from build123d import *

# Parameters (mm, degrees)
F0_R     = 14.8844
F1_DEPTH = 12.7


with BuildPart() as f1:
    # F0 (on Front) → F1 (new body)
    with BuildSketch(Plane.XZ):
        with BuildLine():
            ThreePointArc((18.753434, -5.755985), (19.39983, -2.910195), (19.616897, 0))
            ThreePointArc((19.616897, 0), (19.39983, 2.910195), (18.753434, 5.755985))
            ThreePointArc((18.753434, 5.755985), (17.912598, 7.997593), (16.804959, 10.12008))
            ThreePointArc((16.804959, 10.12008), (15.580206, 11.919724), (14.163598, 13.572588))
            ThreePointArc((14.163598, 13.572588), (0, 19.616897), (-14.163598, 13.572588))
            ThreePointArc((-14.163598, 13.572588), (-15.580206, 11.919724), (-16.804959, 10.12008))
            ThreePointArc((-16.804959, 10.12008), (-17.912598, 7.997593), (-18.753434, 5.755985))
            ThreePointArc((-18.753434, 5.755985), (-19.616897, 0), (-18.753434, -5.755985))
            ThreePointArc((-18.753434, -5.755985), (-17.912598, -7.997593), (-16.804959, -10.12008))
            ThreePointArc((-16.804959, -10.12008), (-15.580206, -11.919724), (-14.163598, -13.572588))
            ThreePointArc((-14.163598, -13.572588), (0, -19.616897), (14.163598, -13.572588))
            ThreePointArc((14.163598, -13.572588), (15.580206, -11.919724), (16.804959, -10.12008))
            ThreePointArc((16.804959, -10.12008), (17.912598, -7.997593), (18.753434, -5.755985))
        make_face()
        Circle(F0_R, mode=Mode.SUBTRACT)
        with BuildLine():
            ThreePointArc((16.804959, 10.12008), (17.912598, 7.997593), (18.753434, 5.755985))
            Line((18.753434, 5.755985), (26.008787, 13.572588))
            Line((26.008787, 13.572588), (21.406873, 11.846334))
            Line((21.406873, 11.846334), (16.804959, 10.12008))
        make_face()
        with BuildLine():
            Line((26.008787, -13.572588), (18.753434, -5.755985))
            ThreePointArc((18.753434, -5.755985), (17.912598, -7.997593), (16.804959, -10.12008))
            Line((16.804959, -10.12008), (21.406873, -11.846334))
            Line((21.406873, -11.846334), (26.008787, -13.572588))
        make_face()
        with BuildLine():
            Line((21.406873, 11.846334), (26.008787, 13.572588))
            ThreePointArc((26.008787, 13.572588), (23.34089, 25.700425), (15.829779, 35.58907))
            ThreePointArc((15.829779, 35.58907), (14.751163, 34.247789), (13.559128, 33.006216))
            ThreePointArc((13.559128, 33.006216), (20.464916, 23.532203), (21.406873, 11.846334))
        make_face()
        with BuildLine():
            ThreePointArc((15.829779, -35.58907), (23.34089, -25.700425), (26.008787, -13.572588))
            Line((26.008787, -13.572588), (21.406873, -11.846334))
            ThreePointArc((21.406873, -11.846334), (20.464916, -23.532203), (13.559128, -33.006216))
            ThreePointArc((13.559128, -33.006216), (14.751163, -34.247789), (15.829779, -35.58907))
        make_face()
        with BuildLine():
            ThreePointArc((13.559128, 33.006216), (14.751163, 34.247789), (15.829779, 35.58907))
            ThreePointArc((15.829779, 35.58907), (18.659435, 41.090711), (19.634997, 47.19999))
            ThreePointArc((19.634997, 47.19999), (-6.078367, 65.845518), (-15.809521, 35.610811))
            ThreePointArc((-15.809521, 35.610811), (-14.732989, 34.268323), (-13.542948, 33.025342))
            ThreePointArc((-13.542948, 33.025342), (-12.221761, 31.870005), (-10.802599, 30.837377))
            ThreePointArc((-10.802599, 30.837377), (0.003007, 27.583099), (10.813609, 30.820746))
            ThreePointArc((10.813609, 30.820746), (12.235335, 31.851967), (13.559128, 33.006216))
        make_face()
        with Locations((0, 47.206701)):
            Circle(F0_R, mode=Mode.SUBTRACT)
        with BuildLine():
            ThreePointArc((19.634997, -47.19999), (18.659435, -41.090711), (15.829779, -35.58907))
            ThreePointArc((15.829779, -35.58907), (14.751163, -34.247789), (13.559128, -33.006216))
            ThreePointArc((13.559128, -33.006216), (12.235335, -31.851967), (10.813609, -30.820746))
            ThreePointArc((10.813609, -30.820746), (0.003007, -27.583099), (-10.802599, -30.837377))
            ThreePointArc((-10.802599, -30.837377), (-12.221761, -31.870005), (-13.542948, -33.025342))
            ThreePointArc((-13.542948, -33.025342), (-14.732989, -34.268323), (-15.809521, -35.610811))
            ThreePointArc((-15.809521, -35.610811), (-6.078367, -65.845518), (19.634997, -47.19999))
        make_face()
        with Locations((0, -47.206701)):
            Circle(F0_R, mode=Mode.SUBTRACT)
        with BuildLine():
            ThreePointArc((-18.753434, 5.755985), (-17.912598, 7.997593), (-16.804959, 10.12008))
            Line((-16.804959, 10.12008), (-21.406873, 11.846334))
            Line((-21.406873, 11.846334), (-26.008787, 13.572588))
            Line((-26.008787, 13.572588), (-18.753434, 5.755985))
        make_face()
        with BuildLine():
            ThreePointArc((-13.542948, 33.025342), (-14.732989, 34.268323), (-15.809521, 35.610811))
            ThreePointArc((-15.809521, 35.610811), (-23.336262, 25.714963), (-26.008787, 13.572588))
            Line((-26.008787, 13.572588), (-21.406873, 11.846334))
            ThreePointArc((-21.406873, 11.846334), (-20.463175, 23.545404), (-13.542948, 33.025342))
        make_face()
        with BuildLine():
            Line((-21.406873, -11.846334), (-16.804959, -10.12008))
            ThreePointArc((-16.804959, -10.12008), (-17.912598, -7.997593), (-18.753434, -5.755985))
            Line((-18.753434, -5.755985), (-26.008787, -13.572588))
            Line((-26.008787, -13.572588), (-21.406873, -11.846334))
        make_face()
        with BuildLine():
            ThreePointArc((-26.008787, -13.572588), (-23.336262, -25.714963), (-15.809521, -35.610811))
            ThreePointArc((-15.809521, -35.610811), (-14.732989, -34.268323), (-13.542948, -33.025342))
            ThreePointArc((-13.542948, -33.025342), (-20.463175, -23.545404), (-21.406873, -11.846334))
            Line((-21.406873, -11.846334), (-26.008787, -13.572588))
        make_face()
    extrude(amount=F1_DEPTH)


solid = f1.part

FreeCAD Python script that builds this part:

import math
import FreeCAD as App
import Part
import Sketcher

V = App.Vector
Q = App.Units.Quantity

doc = App.newDocument("Part")
body = doc.addObject("PartDesign::Body", "Body")

sketch1 = body.newObject("Sketcher::SketchObject", "Sketch")
sketch1.AttachmentSupport = (doc.getObject("XZ_Plane"), [""])
sketch1.MapMode = "FlatFace"
sketch1.addGeometry(Part.ArcOfCircle(Part.Circle(V(0, 0, 0), V(0, 0, 1), 19.6), math.radians(-17.06), math.radians(0)), False)
sketch1.addGeometry(Part.ArcOfCircle(Part.Circle(V(0, 0, 0), V(0, 0, 1), 19.6), math.radians(0), math.radians(17.06)), False)
sketch1.addGeometry(Part.LineSegment(V(18.8, 5.8, 0), V(26, 13.6, 0)), False)
sketch1.addGeometry(Part.ArcOfCircle(Part.Circle(V(-2.9, 13.6, 0), V(0, 0, 1), 28.9), math.radians(0), math.radians(50)), False)
sketch1.addGeometry(Part.ArcOfCircle(Part.Circle(V(0, 47.2, 0), V(0, 0, 1), 19.6), math.radians(-36), math.radians(0)), False)
sketch1.addGeometry(Part.ArcOfCircle(Part.Circle(V(0, 47.2, 0), V(0, 0, 1), 19.6), math.radians(0), math.radians(216)), False)
sketch1.addGeometry(Part.ArcOfCircle(Part.Circle(V(2.9, 13.6, 0), V(0, 0, 1), 28.9), math.radians(130), math.radians(180)), False)
sketch1.addGeometry(Part.LineSegment(V(-26, 13.6, 0), V(-18.8, 5.8, 0)), False)
sketch1.addGeometry(Part.ArcOfCircle(Part.Circle(V(0, 0, 0), V(0, 0, 1), 19.6), math.radians(163), math.radians(197)), False)
sketch1.addGeometry(Part.LineSegment(V(-18.8, -5.8, 0), V(-26, -13.6, 0)), False)
sketch1.addGeometry(Part.ArcOfCircle(Part.Circle(V(2.9, -13.6, 0), V(0, 0, 1), 28.9), math.radians(180), math.radians(230)), False)
sketch1.addGeometry(Part.ArcOfCircle(Part.Circle(V(0, -47.2, 0), V(0, 0, 1), 19.6), math.radians(144), math.radians(360)), False)
sketch1.addGeometry(Part.ArcOfCircle(Part.Circle(V(0, -47.2, 0), V(0, 0, 1), 19.6), math.radians(0), math.radians(36)), False)
sketch1.addGeometry(Part.ArcOfCircle(Part.Circle(V(-2.9, -13.6, 0), V(0, 0, 1), 28.9), math.radians(-50), math.radians(0)), False)
sketch1.addGeometry(Part.LineSegment(V(26, -13.6, 0), V(18.8, -5.8, 0)), False)
sketch1.addGeometry(Part.LineSegment(V(-21.4, -11.8, 0), V(-16.8, -10.1, 0)), False)
sketch1.addGeometry(Part.ArcOfCircle(Part.Circle(V(0, 0, 0), V(0, 0, 1), 19.6), math.radians(-148.94), math.radians(-136.22)), False)
sketch1.addGeometry(Part.ArcOfCircle(Part.Circle(V(0, 0, 0), V(0, 0, 1), 19.6), math.radians(-136), math.radians(-44)), False)
sketch1.addGeometry(Part.ArcOfCircle(Part.Circle(V(0, 0, 0), V(0, 0, 1), 19.6), math.radians(-43.78), math.radians(-31.06)), False)
sketch1.addGeometry(Part.LineSegment(V(16.8, -10.1, 0), V(21.4, -11.8, 0)), False)
sketch1.addGeometry(Part.ArcOfCircle(Part.Circle(V(0.2, -16, 0), V(0, 0, 1), 21.6), math.radians(-52), math.radians(11)), False)
sketch1.addGeometry(Part.ArcOfCircle(Part.Circle(V(0, -47.2, 0), V(0, 0, 1), 19.6), math.radians(46.35), math.radians(56.61)), False)
sketch1.addGeometry(Part.ArcOfCircle(Part.Circle(V(0, -47.2, 0), V(0, 0, 1), 19.6), math.radians(57), math.radians(123)), False)
sketch1.addGeometry(Part.ArcOfCircle(Part.Circle(V(0, -47.2, 0), V(0, 0, 1), 19.6), math.radians(123.48), math.radians(133.73)), False)
sketch1.addGeometry(Part.ArcOfCircle(Part.Circle(V(-0.2, -16, 0), V(0, 0, 1), 21.6), math.radians(169), math.radians(232)), False)
sketch1.addGeometry(Part.ArcOfCircle(Part.Circle(V(0, 47.2, 0), V(0, 0, 1), 19.6), math.radians(-133.73), math.radians(-123.48)), False)
sketch1.addGeometry(Part.ArcOfCircle(Part.Circle(V(0, 47.2, 0), V(0, 0, 1), 19.6), math.radians(-123), math.radians(-57)), False)
sketch1.addGeometry(Part.ArcOfCircle(Part.Circle(V(0, 47.2, 0), V(0, 0, 1), 19.6), math.radians(-56.61), math.radians(-46.35)), False)
sketch1.addGeometry(Part.ArcOfCircle(Part.Circle(V(0.2, 16, 0), V(0, 0, 1), 21.6), math.radians(-11), math.radians(52)), False)
sketch1.addGeometry(Part.LineSegment(V(21.4, 11.8, 0), V(16.8, 10.1, 0)), False)
sketch1.addGeometry(Part.ArcOfCircle(Part.Circle(V(0, 0, 0), V(0, 0, 1), 19.6), math.radians(31.06), math.radians(43.78)), False)
sketch1.addGeometry(Part.ArcOfCircle(Part.Circle(V(0, 0, 0), V(0, 0, 1), 19.6), math.radians(44), math.radians(136)), False)
sketch1.addGeometry(Part.ArcOfCircle(Part.Circle(V(0, 0, 0), V(0, 0, 1), 19.6), math.radians(136.22), math.radians(148.94)), False)
sketch1.addGeometry(Part.LineSegment(V(-16.8, 10.1, 0), V(-21.4, 11.8, 0)), False)
sketch1.addGeometry(Part.ArcOfCircle(Part.Circle(V(-0.2, 16, 0), V(0, 0, 1), 21.6), math.radians(128), math.radians(191)), False)
sketch1.addGeometry(Part.Circle(V(0, -47.2, 0), V(0, 0, 1), 14.9), False)
sketch1.addGeometry(Part.Circle(V(0, 0, 0), V(0, 0, 1), 14.9), False)
sketch1.addGeometry(Part.Circle(V(0, 47.2, 0), V(0, 0, 1), 14.9), False)
sketch1.addConstraint(Sketcher.Constraint("Tangent", 0, 2, 1, 1))
sketch1.addConstraint(Sketcher.Constraint("Coincident", 1, 2, 2, 1))
sketch1.addConstraint(Sketcher.Constraint("Coincident", 2, 2, 3, 1))
sketch1.addConstraint(Sketcher.Constraint("Coincident", 3, 2, 4, 1))
sketch1.addConstraint(Sketcher.Constraint("Tangent", 4, 2, 5, 1))
sketch1.addConstraint(Sketcher.Constraint("Coincident", 5, 2, 6, 1))
sketch1.addConstraint(Sketcher.Constraint("Coincident", 6, 2, 7, 1))
sketch1.addConstraint(Sketcher.Constraint("Coincident", 7, 2, 8, 1))
sketch1.addConstraint(Sketcher.Constraint("Coincident", 8, 2, 9, 1))
sketch1.addConstraint(Sketcher.Constraint("Coincident", 9, 2, 10, 1))
sketch1.addConstraint(Sketcher.Constraint("Coincident", 10, 2, 11, 1))
sketch1.addConstraint(Sketcher.Constraint("Tangent", 11, 2, 12, 1))
sketch1.addConstraint(Sketcher.Constraint("Coincident", 12, 2, 13, 1))
sketch1.addConstraint(Sketcher.Constraint("Coincident", 13, 2, 14, 1))
sketch1.addConstraint(Sketcher.Constraint("Coincident", 14, 2, 0, 1))
sketch1.addConstraint(Sketcher.Constraint("Coincident", 15, 2, 16, 1))
sketch1.addConstraint(Sketcher.Constraint("Tangent", 16, 2, 17, 1))
sketch1.addConstraint(Sketcher.Constraint("Tangent", 17, 2, 18, 1))
sketch1.addConstraint(Sketcher.Constraint("Coincident", 18, 2, 19, 1))
sketch1.addConstraint(Sketcher.Constraint("Coincident", 19, 2, 20, 2))
sketch1.addConstraint(Sketcher.Constraint("Coincident", 20, 1, 21, 1))
sketch1.addConstraint(Sketcher.Constraint("Tangent", 21, 2, 22, 1))
sketch1.addConstraint(Sketcher.Constraint("Tangent", 22, 2, 23, 1))
sketch1.addConstraint(Sketcher.Constraint("Coincident", 23, 2, 24, 2))
sketch1.addConstraint(Sketcher.Constraint("Coincident", 24, 1, 15, 1))
sketch1.addConstraint(Sketcher.Constraint("Tangent", 25, 2, 26, 1))
sketch1.addConstraint(Sketcher.Constraint("Tangent", 26, 2, 27, 1))
sketch1.addConstraint(Sketcher.Constraint("Coincident", 27, 2, 28, 2))
sketch1.addConstraint(Sketcher.Constraint("Coincident", 28, 1, 29, 1))
sketch1.addConstraint(Sketcher.Constraint("Coincident", 29, 2, 30, 1))
sketch1.addConstraint(Sketcher.Constraint("Tangent", 30, 2, 31, 1))
sketch1.addConstraint(Sketcher.Constraint("Tangent", 31, 2, 32, 1))
sketch1.addConstraint(Sketcher.Constraint("Coincident", 32, 2, 33, 1))
sketch1.addConstraint(Sketcher.Constraint("Coincident", 33, 2, 34, 2))
sketch1.addConstraint(Sketcher.Constraint("Coincident", 34, 1, 25, 1))
sketch1.addConstraint(Sketcher.Constraint("Coincident", 8, 3, -1, 1))
sketch1.addConstraint(Sketcher.Constraint("Coincident", 17, 3, -1, 1))
sketch1.addConstraint(Sketcher.Constraint("Coincident", 31, 3, -1, 1))
sketch1.addConstraint(Sketcher.Constraint("Coincident", 36, 3, -1, 1))
sketch1.addConstraint(Sketcher.Constraint("Coincident", 22, 3, 11, 3))
sketch1.addConstraint(Sketcher.Constraint("Coincident", 26, 3, 4, 3))
sketch1.addConstraint(Sketcher.Constraint("Equal", 0, 1))
sketch1.addConstraint(Sketcher.Constraint("Equal", 5, 8))
sketch1.addConstraint(Sketcher.Constraint("Equal", 6, 10))
sketch1.addConstraint(Sketcher.Constraint("Equal", 8, 11))
sketch1.addConstraint(Sketcher.Constraint("Equal", 4, 12))
sketch1.addConstraint(Sketcher.Constraint("Equal", 3, 13))
sketch1.addConstraint(Sketcher.Constraint("Equal", 11, 17))
sketch1.addConstraint(Sketcher.Constraint("Equal", 16, 18))
sketch1.addConstraint(Sketcher.Constraint("Equal", 18, 21))
sketch1.addConstraint(Sketcher.Constraint("Equal", 17, 22))
sketch1.addConstraint(Sketcher.Constraint("Equal", 23, 25))
sketch1.addConstraint(Sketcher.Constraint("Equal", 22, 26))
sketch1.addConstraint(Sketcher.Constraint("Equal", 21, 27))
sketch1.addConstraint(Sketcher.Constraint("Equal", 20, 28))
sketch1.addConstraint(Sketcher.Constraint("Equal", 27, 30))
sketch1.addConstraint(Sketcher.Constraint("Equal", 26, 31))
sketch1.addConstraint(Sketcher.Constraint("Equal", 30, 32))
sketch1.addConstraint(Sketcher.Constraint("Equal", 24, 34))
sketch1.addConstraint(Sketcher.Constraint("Equal", 35, 36))
sketch1.addConstraint(Sketcher.Constraint("Equal", 36, 37))
sketch1.addConstraint(Sketcher.Constraint("Symmetric", 35, 3, 37, 3, -1, 1))
sketch1.addConstraint(Sketcher.Constraint("Symmetric", 1, 2, 8, 2, -1, 1))
sketch1.addConstraint(Sketcher.Constraint("Symmetric", 2, 2, 9, 2, -1, 1))
sketch1.addConstraint(Sketcher.Constraint("Symmetric", 6, 2, 13, 2, -1, 1))
sketch1.addConstraint(Sketcher.Constraint("Symmetric", 7, 2, 14, 2, -1, 1))
sketch1.addConstraint(Sketcher.Constraint("Symmetric", 24, 1, 28, 1, -1, 1))
sketch1.addConstraint(Sketcher.Constraint("Symmetric", 19, 2, 33, 2, -1, 1))
sketch1.addConstraint(Sketcher.Constraint("Symmetric", 2, 2, 6, 2, -2))
sketch1.addConstraint(Sketcher.Constraint("Symmetric", 19, 2, 24, 1, -2))
sketch1.addConstraint(Sketcher.Constraint("Symmetric", 4, 3, 11, 3, -1))
sketch1.addConstraint(Sketcher.Constraint("Symmetric", 5, 2, 10, 2, -1))
sketch1.addConstraint(Sketcher.Constraint("PointOnObject", 35, 3, -2))
sketch1.addConstraint(Sketcher.Constraint("PointOnObject", 0, 2, -1))
sketch1.addConstraint(Sketcher.Constraint("Parallel", 15, 29))
sketch1.addConstraint(Sketcher.Constraint("Parallel", 19, 33))
sketch1.addConstraint(Sketcher.Constraint("Horizontal", 21, 3, 23, 3))
sketch1.addConstraint(Sketcher.Constraint("Horizontal", 3, 3, 2, 2))
sketch1.addConstraint(Sketcher.Constraint("Horizontal", 26, 3, 4, 2))
sketch1.addConstraint(Sketcher.Constraint("Horizontal", 1, 2, 7, 2))
sketch1.addConstraint(Sketcher.Constraint("Horizontal", 13, 3, 9, 2))
sketch1.addConstraint(Sketcher.Constraint("Horizontal", 22, 3, 11, 2))
sketch1.addConstraint(Sketcher.Constraint("Horizontal", 13, 2, 16, 2))
sketch1.addConstraint(Sketcher.Constraint("Horizontal", 16, 2, 17, 2))
sketch1.addConstraint(Sketcher.Constraint("Horizontal", 15, 2, 18, 2))
sketch1.addConstraint(Sketcher.Constraint("Horizontal", 6, 2, 30, 2))
sketch1.addConstraint(Sketcher.Constraint("Horizontal", 30, 2, 31, 2))
sketch1.addConstraint(Sketcher.Constraint("Vertical", 20, 3, 28, 3))
sketch1.addConstraint(Sketcher.Constraint("Vertical", 24, 3, 34, 3))
sketch1.addConstraint(Sketcher.Constraint("Vertical", 22, 2, 25, 2))
sketch1.addConstraint(Sketcher.Constraint("Vertical", 21, 2, 26, 2))
sketch1.addConstraint(Sketcher.Constraint("Diameter", 35, Q("1.172 in")))
sketch1.addConstraint(Sketcher.Constraint("Radius", 8, Q("19.616898 mm")))
sketch1.addConstraint(Sketcher.Constraint("Radius", 0, Q("19.61692 mm")))
sketch1.addConstraint(Sketcher.Constraint("Radius", 16, Q("19.616982 mm")))
sketch1.addConstraint(Sketcher.Constraint("Radius", 20, Q("21.608468 mm")))
sketch1.addConstraint(Sketcher.Constraint("Radius", 24, Q("21.608471 mm")))
sketch1.addConstraint(Sketcher.Constraint("Radius", 3, Q("28.899557 mm")))
sketch1.addConstraint(Sketcher.Constraint("Radius", 6, Q("28.899554 mm")))
sketch1.addConstraint(Sketcher.Constraint("DistanceX", -1, 1, 5, 3, Q("0.0181 mm")))
sketch1.addConstraint(Sketcher.Constraint("DistanceY", 35, 3, -1, 1, Q("47.206701 mm")))
sketch1.addConstraint(Sketcher.Constraint("DistanceX", -1, 1, 17, 2, Q("14.163598 mm")))
sketch1.addConstraint(Sketcher.Constraint("DistanceX", 22, 2, -1, 1, Q("10.802599 mm")))
sketch1.addConstraint(Sketcher.Constraint("Distance", 2, Q("10.664869 mm")))
sketch1.addConstraint(Sketcher.Constraint("DistanceX", 3, 3, -1, 1, Q("2.89077 mm")))
sketch1.addConstraint(Sketcher.Constraint("DistanceY", -1, 1, 4, 3, Q("47.199988 mm")))
sketch1.addConstraint(Sketcher.Constraint("DistanceY", -1, 1, 6, 3, Q("13.577122 mm")))
sketch1.addConstraint(Sketcher.Constraint("DistanceY", 20, 3, -1, 1, Q("16.01822 mm")))
sketch1.addConstraint(Sketcher.Constraint("DistanceY", 24, 3, -1, 1, Q("16.023779 mm")))
sketch1.addConstraint(Sketcher.Constraint("DistanceX", 15, 2, -1, 1, Q("16.804959 mm")))
sketch1.addConstraint(Sketcher.Constraint("DistanceX", -1, 1, 20, 1, Q("13.559128 mm")))
sketch1.addConstraint(Sketcher.Constraint("DistanceX", -1, 1, 21, 2, Q("10.813609 mm")))
sketch1.addConstraint(Sketcher.Constraint("Distance", 15, Q("4.915035 mm")))
pad1 = body.newObject("PartDesign::Pad", "Pad")
pad1.Profile = sketch1
pad1.Length = Q("0.5 in")

doc.recompute()
